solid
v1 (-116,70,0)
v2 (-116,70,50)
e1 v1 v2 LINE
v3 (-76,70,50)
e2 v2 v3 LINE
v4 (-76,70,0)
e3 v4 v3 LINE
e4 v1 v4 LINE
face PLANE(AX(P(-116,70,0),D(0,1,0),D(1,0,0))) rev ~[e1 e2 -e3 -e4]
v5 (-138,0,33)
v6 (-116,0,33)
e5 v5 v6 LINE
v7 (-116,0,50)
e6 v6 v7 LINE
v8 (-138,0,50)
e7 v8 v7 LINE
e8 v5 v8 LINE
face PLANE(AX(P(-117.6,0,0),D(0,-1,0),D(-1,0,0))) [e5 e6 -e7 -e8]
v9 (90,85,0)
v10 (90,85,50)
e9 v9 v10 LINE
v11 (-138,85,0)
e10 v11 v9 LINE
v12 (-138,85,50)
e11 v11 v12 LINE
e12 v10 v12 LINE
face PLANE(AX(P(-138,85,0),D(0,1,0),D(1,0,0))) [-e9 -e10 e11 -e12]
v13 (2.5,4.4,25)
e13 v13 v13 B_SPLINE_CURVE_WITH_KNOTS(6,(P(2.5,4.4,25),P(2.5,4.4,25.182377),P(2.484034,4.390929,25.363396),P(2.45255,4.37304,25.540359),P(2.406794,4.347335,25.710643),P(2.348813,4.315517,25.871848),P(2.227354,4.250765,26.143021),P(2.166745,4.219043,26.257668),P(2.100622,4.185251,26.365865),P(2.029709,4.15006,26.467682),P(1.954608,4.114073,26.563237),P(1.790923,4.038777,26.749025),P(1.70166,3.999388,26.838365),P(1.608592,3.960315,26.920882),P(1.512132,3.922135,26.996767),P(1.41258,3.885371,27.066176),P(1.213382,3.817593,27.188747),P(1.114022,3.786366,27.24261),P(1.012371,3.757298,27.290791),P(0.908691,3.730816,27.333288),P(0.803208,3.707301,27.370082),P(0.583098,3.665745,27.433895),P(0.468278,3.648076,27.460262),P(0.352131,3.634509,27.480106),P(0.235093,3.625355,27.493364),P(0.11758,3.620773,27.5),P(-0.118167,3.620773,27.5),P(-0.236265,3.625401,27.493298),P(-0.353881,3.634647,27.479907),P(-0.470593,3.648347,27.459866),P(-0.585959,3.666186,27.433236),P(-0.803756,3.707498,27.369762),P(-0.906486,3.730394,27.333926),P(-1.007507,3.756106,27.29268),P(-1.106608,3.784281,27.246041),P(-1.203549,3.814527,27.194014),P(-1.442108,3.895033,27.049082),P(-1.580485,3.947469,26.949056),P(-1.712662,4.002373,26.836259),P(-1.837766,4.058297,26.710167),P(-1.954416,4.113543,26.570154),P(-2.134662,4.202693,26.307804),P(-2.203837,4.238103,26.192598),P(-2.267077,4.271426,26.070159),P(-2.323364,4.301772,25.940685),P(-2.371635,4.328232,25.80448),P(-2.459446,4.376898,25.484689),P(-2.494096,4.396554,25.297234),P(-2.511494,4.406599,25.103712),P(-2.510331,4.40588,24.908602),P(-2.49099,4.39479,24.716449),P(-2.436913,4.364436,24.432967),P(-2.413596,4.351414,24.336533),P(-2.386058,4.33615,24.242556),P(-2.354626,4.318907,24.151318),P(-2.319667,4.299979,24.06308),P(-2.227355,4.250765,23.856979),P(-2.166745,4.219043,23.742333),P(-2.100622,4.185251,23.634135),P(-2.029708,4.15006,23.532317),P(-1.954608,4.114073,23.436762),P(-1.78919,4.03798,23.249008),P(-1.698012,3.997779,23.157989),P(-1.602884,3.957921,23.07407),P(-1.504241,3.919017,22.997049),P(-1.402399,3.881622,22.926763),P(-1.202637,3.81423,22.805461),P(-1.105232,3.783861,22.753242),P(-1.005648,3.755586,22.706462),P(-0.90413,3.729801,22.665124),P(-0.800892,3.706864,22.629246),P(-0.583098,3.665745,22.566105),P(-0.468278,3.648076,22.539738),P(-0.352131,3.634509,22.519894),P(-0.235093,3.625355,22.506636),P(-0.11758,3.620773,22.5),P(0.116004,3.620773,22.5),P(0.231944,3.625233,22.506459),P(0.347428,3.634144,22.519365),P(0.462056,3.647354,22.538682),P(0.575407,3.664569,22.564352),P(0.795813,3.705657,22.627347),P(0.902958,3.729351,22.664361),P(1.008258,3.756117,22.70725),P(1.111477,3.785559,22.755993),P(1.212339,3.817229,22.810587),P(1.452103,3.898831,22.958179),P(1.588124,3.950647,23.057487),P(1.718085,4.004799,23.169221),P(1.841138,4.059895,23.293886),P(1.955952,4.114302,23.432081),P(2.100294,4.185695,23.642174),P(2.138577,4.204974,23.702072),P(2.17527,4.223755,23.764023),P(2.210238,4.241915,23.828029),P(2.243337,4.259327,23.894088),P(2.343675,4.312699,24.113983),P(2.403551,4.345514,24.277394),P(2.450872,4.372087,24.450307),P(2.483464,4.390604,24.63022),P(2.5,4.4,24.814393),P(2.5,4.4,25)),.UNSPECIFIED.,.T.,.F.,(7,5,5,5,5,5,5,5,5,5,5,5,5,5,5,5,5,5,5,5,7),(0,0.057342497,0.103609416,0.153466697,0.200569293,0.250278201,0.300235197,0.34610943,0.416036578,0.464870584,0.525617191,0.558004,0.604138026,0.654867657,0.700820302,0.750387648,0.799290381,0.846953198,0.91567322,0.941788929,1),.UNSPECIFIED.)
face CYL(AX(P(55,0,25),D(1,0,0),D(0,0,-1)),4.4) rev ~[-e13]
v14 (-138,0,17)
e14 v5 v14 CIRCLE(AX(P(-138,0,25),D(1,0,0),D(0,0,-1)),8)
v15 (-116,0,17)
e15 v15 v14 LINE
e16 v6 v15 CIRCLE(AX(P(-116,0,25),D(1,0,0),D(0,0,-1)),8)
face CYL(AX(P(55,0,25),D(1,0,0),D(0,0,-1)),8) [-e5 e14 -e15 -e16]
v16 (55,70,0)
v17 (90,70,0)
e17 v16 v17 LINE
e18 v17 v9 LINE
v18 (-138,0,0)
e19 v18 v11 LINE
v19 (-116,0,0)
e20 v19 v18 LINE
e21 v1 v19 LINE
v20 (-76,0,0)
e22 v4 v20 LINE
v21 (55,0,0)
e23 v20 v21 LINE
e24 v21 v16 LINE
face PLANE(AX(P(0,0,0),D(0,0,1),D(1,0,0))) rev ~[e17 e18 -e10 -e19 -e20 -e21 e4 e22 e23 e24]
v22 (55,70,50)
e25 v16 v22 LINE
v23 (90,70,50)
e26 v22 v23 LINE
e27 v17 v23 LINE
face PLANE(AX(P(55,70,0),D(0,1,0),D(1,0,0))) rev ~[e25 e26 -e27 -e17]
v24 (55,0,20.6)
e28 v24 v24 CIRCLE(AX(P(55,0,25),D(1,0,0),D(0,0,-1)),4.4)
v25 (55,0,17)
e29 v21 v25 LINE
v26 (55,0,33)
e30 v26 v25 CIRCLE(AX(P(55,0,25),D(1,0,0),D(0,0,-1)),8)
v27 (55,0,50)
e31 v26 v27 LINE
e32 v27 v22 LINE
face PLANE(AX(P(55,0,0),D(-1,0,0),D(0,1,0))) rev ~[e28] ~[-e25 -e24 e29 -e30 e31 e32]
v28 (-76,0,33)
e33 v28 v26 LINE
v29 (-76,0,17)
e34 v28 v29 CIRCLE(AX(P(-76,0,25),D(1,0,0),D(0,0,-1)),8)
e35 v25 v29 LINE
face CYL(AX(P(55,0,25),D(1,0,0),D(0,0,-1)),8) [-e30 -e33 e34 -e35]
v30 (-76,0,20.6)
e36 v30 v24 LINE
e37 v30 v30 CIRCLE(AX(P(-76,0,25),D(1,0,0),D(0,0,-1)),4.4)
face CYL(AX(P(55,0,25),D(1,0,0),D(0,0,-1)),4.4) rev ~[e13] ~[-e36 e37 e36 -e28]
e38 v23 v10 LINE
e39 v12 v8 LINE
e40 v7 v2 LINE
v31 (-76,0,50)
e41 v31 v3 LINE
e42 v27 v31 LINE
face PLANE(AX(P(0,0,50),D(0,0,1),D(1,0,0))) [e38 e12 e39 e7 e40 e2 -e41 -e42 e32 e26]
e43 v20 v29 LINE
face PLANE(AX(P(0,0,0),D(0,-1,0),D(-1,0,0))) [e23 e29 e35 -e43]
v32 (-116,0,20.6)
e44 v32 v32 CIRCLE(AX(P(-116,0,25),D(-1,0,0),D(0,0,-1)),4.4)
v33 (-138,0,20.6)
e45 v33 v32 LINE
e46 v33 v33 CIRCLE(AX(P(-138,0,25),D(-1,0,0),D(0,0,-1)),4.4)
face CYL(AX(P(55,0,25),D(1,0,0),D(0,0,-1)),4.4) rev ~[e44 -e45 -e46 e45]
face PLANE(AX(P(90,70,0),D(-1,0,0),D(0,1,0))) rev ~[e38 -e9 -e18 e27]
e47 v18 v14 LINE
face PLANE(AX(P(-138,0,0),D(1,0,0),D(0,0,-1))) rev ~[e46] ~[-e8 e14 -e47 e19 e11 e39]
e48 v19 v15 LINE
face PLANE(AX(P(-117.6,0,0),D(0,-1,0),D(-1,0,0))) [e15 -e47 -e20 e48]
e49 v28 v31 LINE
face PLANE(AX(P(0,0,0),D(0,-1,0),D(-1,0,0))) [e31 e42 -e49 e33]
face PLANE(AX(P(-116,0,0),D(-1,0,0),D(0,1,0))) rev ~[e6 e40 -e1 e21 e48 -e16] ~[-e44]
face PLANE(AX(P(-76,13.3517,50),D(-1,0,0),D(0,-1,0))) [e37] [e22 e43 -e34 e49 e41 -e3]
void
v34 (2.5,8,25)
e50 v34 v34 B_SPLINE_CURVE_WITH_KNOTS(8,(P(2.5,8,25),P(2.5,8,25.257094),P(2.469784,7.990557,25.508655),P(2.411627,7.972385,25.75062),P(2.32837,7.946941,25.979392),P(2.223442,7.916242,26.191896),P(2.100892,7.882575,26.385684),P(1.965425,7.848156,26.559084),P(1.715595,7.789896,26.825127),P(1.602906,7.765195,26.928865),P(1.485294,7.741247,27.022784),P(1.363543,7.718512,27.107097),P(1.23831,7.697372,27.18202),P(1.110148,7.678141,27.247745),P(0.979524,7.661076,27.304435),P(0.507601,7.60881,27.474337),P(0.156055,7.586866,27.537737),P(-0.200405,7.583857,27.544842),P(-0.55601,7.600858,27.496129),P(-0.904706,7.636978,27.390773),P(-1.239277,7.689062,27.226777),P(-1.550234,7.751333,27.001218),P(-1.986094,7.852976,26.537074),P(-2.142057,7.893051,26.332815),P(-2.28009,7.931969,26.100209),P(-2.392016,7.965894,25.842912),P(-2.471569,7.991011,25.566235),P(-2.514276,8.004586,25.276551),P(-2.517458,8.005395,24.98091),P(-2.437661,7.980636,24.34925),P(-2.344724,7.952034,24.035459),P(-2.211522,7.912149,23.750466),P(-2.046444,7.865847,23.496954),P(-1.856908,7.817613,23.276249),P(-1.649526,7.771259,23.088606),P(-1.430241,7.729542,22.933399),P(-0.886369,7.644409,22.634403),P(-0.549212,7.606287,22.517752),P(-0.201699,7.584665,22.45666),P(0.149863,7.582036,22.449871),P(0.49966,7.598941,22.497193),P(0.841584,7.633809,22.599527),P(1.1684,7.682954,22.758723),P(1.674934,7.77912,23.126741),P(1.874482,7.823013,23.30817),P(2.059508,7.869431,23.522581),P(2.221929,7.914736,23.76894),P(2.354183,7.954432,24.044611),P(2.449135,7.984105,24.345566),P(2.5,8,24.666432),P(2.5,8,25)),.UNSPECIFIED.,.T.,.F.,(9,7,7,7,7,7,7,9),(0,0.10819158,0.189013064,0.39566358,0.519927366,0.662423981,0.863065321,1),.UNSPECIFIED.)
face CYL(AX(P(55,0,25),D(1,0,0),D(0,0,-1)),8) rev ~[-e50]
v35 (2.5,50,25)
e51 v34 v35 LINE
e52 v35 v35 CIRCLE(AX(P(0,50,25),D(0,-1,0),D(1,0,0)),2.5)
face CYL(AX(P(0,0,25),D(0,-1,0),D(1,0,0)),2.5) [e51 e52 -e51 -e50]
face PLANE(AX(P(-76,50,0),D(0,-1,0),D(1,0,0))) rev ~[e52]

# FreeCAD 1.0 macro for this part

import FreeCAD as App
import Part
import Sketcher

V = App.Vector


def add_polygon(sketch, points):
    """Adds a closed chain of lines whose ends are joined by coincident constraints."""
    first, n = sketch.GeometryCount, len(points)
    for a, b in zip(points, points[1:] + points[:1]):
        sketch.addGeometry(Part.LineSegment(App.Vector(*a, 0), App.Vector(*b, 0)), False)
    for i in range(n):
        sketch.addConstraint(Sketcher.Constraint("Coincident", first + i, 2, first + (i + 1) % n, 1))

doc = App.newDocument("Part")
body = doc.addObject("PartDesign::Body", "Body")

sketch1 = doc.addObject("Sketcher::SketchObject", "Sketch")
body.addObject(sketch1)
sketch1.AttachmentSupport = (doc.XY_Plane, [""])
sketch1.MapMode = "FlatFace"
add_polygon(sketch1, [(55, 0), (55, 70), (90, 70), (90, 85), (-138, 85), (-138, 0), (-116, 0), (-116, 70), (-76, 70), (-76, 0)])
sketch1.addConstraint([
    Sketcher.Constraint("Vertical", 0),
    Sketcher.Constraint("Horizontal", 1),
    Sketcher.Constraint("Vertical", 2),
    Sketcher.Constraint("Horizontal", 3),
    Sketcher.Constraint("Vertical", 4),
    Sketcher.Constraint("Horizontal", 5),
    Sketcher.Constraint("Vertical", 6),
    Sketcher.Constraint("Horizontal", 7),
    Sketcher.Constraint("Vertical", 8),
    Sketcher.Constraint("Horizontal", 9),
    Sketcher.Constraint("PointOnObject", 4, 2, -1),
    Sketcher.Constraint("PointOnObject", 8, 2, -1),
    Sketcher.Constraint("Horizontal", 1, 2, 6, 2),
    Sketcher.Constraint("DistanceX", 1, 1, 1, 2, 35.0),
    Sketcher.Constraint("DistanceX", 3, 2, 3, 1, 228.0),
    Sketcher.Constraint("DistanceX", 5, 1, 5, 2, 22.0),
    Sketcher.Constraint("DistanceX", 7, 1, 7, 2, 40.0),
    Sketcher.Constraint("DistanceY", 0, 1, 0, 2, 70.0),
    Sketcher.Constraint("DistanceY", 2, 1, 2, 2, 15.0),
    Sketcher.Constraint("DistanceX", -1, 1, 0, 2, 55.0),
])
pad1 = doc.addObject("PartDesign::Pad", "Pad")
body.addObject(pad1)
pad1.Profile = sketch1
pad1.Length = 50

sketch2 = doc.addObject("Sketcher::SketchObject", "Sketch001")
body.addObject(sketch2)
sketch2.AttachmentSupport = (doc.XZ_Plane, [""])
sketch2.MapMode = "FlatFace"
sketch2.addGeometry(Part.Circle(V(0, 25, 0), V(0, 0, 1), 2.5), False)
sketch2.addConstraint([
    Sketcher.Constraint("PointOnObject", 0, 3, -2),
    Sketcher.Constraint("Diameter", 0, 5.0),
    Sketcher.Constraint("DistanceY", -1, 1, 0, 3, 25.0),
])
pocket1 = doc.addObject("PartDesign::Pocket", "Pocket")
body.addObject(pocket1)
pocket1.Profile = sketch2
pocket1.Length = 50

sketch3 = doc.addObject("Sketcher::SketchObject", "Sketch002")
body.addObject(sketch3)
sketch3.AttachmentSupport = (doc.YZ_Plane, [""])
sketch3.MapMode = "FlatFace"
sketch3.AttachmentOffset = App.Placement(V(0, 0, 55), App.Rotation())
sketch3.addGeometry(Part.Circle(V(0, 25, 0), V(0, 0, 1), 4.4), False)
sketch3.addConstraint([
    Sketcher.Constraint("PointOnObject", 0, 3, -2),
    Sketcher.Constraint("Diameter", 0, 8.8),
    Sketcher.Constraint("DistanceY", -1, 1, 0, 3, 25.0),
])
pocket2 = doc.addObject("PartDesign::Pocket", "Pocket001")
body.addObject(pocket2)
pocket2.Profile = sketch3
pocket2.Length = 238.5

sketch4 = doc.addObject("Sketcher::SketchObject", "Sketch003")
body.addObject(sketch4)
sketch4.AttachmentSupport = (doc.YZ_Plane, [""])
sketch4.MapMode = "FlatFace"
sketch4.AttachmentOffset = App.Placement(V(0, 0, 55), App.Rotation())
sketch4.addGeometry([
    Part.Circle(V(0, 25, 0), V(0, 0, 1), 8),
    Part.Circle(V(0, 25, 0), V(0, 0, 1), 4.4),
], False)
sketch4.addConstraint([
    Sketcher.Constraint("Coincident", 1, 3, 0, 3),
    Sketcher.Constraint("PointOnObject", 0, 3, -2),
    Sketcher.Constraint("Diameter", 0, 16.0),
    Sketcher.Constraint("Diameter", 1, 8.8),
    Sketcher.Constraint("DistanceY", -1, 1, 0, 3, 25.0),
])
pad2 = doc.addObject("PartDesign::Pad", "Pad001")
body.addObject(pad2)
pad2.Profile = sketch4
pad2.Length = 193
pad2.Reversed = True

sketch5 = doc.addObject("Sketcher::SketchObject", "Sketch004")
body.addObject(sketch5)
sketch5.AttachmentSupport = (doc.XY_Plane, [""])
sketch5.MapMode = "FlatFace"
sketch5.AttachmentOffset = App.Placement(V(0, 0, 50), App.Rotation())
add_polygon(sketch5, [(-116, 13.3517), (-116, -16.9742), (-76, -16.9742), (-76, 13.3517)])
sketch5.addConstraint([
    Sketcher.Constraint("Vertical", 0),
    Sketcher.Constraint("Horizontal", 1),
    Sketcher.Constraint("Vertical", 2),
    Sketcher.Constraint("Horizontal", 3),
    Sketcher.Constraint("DistanceX", 1, 1, 1, 2, 40.0),
    Sketcher.Constraint("DistanceX", 0, 2, -1, 1, 116.0),
    Sketcher.Constraint("DistanceY", 0, 2, 0, 1, 30.326),
    Sketcher.Constraint("DistanceY", 0, 2, -1, 1, 16.9742),
])
pocket3 = doc.addObject("PartDesign::Pocket", "Pocket002")
body.addObject(pocket3)
pocket3.Profile = sketch5
pocket3.Length = 238.5

doc.recompute()
